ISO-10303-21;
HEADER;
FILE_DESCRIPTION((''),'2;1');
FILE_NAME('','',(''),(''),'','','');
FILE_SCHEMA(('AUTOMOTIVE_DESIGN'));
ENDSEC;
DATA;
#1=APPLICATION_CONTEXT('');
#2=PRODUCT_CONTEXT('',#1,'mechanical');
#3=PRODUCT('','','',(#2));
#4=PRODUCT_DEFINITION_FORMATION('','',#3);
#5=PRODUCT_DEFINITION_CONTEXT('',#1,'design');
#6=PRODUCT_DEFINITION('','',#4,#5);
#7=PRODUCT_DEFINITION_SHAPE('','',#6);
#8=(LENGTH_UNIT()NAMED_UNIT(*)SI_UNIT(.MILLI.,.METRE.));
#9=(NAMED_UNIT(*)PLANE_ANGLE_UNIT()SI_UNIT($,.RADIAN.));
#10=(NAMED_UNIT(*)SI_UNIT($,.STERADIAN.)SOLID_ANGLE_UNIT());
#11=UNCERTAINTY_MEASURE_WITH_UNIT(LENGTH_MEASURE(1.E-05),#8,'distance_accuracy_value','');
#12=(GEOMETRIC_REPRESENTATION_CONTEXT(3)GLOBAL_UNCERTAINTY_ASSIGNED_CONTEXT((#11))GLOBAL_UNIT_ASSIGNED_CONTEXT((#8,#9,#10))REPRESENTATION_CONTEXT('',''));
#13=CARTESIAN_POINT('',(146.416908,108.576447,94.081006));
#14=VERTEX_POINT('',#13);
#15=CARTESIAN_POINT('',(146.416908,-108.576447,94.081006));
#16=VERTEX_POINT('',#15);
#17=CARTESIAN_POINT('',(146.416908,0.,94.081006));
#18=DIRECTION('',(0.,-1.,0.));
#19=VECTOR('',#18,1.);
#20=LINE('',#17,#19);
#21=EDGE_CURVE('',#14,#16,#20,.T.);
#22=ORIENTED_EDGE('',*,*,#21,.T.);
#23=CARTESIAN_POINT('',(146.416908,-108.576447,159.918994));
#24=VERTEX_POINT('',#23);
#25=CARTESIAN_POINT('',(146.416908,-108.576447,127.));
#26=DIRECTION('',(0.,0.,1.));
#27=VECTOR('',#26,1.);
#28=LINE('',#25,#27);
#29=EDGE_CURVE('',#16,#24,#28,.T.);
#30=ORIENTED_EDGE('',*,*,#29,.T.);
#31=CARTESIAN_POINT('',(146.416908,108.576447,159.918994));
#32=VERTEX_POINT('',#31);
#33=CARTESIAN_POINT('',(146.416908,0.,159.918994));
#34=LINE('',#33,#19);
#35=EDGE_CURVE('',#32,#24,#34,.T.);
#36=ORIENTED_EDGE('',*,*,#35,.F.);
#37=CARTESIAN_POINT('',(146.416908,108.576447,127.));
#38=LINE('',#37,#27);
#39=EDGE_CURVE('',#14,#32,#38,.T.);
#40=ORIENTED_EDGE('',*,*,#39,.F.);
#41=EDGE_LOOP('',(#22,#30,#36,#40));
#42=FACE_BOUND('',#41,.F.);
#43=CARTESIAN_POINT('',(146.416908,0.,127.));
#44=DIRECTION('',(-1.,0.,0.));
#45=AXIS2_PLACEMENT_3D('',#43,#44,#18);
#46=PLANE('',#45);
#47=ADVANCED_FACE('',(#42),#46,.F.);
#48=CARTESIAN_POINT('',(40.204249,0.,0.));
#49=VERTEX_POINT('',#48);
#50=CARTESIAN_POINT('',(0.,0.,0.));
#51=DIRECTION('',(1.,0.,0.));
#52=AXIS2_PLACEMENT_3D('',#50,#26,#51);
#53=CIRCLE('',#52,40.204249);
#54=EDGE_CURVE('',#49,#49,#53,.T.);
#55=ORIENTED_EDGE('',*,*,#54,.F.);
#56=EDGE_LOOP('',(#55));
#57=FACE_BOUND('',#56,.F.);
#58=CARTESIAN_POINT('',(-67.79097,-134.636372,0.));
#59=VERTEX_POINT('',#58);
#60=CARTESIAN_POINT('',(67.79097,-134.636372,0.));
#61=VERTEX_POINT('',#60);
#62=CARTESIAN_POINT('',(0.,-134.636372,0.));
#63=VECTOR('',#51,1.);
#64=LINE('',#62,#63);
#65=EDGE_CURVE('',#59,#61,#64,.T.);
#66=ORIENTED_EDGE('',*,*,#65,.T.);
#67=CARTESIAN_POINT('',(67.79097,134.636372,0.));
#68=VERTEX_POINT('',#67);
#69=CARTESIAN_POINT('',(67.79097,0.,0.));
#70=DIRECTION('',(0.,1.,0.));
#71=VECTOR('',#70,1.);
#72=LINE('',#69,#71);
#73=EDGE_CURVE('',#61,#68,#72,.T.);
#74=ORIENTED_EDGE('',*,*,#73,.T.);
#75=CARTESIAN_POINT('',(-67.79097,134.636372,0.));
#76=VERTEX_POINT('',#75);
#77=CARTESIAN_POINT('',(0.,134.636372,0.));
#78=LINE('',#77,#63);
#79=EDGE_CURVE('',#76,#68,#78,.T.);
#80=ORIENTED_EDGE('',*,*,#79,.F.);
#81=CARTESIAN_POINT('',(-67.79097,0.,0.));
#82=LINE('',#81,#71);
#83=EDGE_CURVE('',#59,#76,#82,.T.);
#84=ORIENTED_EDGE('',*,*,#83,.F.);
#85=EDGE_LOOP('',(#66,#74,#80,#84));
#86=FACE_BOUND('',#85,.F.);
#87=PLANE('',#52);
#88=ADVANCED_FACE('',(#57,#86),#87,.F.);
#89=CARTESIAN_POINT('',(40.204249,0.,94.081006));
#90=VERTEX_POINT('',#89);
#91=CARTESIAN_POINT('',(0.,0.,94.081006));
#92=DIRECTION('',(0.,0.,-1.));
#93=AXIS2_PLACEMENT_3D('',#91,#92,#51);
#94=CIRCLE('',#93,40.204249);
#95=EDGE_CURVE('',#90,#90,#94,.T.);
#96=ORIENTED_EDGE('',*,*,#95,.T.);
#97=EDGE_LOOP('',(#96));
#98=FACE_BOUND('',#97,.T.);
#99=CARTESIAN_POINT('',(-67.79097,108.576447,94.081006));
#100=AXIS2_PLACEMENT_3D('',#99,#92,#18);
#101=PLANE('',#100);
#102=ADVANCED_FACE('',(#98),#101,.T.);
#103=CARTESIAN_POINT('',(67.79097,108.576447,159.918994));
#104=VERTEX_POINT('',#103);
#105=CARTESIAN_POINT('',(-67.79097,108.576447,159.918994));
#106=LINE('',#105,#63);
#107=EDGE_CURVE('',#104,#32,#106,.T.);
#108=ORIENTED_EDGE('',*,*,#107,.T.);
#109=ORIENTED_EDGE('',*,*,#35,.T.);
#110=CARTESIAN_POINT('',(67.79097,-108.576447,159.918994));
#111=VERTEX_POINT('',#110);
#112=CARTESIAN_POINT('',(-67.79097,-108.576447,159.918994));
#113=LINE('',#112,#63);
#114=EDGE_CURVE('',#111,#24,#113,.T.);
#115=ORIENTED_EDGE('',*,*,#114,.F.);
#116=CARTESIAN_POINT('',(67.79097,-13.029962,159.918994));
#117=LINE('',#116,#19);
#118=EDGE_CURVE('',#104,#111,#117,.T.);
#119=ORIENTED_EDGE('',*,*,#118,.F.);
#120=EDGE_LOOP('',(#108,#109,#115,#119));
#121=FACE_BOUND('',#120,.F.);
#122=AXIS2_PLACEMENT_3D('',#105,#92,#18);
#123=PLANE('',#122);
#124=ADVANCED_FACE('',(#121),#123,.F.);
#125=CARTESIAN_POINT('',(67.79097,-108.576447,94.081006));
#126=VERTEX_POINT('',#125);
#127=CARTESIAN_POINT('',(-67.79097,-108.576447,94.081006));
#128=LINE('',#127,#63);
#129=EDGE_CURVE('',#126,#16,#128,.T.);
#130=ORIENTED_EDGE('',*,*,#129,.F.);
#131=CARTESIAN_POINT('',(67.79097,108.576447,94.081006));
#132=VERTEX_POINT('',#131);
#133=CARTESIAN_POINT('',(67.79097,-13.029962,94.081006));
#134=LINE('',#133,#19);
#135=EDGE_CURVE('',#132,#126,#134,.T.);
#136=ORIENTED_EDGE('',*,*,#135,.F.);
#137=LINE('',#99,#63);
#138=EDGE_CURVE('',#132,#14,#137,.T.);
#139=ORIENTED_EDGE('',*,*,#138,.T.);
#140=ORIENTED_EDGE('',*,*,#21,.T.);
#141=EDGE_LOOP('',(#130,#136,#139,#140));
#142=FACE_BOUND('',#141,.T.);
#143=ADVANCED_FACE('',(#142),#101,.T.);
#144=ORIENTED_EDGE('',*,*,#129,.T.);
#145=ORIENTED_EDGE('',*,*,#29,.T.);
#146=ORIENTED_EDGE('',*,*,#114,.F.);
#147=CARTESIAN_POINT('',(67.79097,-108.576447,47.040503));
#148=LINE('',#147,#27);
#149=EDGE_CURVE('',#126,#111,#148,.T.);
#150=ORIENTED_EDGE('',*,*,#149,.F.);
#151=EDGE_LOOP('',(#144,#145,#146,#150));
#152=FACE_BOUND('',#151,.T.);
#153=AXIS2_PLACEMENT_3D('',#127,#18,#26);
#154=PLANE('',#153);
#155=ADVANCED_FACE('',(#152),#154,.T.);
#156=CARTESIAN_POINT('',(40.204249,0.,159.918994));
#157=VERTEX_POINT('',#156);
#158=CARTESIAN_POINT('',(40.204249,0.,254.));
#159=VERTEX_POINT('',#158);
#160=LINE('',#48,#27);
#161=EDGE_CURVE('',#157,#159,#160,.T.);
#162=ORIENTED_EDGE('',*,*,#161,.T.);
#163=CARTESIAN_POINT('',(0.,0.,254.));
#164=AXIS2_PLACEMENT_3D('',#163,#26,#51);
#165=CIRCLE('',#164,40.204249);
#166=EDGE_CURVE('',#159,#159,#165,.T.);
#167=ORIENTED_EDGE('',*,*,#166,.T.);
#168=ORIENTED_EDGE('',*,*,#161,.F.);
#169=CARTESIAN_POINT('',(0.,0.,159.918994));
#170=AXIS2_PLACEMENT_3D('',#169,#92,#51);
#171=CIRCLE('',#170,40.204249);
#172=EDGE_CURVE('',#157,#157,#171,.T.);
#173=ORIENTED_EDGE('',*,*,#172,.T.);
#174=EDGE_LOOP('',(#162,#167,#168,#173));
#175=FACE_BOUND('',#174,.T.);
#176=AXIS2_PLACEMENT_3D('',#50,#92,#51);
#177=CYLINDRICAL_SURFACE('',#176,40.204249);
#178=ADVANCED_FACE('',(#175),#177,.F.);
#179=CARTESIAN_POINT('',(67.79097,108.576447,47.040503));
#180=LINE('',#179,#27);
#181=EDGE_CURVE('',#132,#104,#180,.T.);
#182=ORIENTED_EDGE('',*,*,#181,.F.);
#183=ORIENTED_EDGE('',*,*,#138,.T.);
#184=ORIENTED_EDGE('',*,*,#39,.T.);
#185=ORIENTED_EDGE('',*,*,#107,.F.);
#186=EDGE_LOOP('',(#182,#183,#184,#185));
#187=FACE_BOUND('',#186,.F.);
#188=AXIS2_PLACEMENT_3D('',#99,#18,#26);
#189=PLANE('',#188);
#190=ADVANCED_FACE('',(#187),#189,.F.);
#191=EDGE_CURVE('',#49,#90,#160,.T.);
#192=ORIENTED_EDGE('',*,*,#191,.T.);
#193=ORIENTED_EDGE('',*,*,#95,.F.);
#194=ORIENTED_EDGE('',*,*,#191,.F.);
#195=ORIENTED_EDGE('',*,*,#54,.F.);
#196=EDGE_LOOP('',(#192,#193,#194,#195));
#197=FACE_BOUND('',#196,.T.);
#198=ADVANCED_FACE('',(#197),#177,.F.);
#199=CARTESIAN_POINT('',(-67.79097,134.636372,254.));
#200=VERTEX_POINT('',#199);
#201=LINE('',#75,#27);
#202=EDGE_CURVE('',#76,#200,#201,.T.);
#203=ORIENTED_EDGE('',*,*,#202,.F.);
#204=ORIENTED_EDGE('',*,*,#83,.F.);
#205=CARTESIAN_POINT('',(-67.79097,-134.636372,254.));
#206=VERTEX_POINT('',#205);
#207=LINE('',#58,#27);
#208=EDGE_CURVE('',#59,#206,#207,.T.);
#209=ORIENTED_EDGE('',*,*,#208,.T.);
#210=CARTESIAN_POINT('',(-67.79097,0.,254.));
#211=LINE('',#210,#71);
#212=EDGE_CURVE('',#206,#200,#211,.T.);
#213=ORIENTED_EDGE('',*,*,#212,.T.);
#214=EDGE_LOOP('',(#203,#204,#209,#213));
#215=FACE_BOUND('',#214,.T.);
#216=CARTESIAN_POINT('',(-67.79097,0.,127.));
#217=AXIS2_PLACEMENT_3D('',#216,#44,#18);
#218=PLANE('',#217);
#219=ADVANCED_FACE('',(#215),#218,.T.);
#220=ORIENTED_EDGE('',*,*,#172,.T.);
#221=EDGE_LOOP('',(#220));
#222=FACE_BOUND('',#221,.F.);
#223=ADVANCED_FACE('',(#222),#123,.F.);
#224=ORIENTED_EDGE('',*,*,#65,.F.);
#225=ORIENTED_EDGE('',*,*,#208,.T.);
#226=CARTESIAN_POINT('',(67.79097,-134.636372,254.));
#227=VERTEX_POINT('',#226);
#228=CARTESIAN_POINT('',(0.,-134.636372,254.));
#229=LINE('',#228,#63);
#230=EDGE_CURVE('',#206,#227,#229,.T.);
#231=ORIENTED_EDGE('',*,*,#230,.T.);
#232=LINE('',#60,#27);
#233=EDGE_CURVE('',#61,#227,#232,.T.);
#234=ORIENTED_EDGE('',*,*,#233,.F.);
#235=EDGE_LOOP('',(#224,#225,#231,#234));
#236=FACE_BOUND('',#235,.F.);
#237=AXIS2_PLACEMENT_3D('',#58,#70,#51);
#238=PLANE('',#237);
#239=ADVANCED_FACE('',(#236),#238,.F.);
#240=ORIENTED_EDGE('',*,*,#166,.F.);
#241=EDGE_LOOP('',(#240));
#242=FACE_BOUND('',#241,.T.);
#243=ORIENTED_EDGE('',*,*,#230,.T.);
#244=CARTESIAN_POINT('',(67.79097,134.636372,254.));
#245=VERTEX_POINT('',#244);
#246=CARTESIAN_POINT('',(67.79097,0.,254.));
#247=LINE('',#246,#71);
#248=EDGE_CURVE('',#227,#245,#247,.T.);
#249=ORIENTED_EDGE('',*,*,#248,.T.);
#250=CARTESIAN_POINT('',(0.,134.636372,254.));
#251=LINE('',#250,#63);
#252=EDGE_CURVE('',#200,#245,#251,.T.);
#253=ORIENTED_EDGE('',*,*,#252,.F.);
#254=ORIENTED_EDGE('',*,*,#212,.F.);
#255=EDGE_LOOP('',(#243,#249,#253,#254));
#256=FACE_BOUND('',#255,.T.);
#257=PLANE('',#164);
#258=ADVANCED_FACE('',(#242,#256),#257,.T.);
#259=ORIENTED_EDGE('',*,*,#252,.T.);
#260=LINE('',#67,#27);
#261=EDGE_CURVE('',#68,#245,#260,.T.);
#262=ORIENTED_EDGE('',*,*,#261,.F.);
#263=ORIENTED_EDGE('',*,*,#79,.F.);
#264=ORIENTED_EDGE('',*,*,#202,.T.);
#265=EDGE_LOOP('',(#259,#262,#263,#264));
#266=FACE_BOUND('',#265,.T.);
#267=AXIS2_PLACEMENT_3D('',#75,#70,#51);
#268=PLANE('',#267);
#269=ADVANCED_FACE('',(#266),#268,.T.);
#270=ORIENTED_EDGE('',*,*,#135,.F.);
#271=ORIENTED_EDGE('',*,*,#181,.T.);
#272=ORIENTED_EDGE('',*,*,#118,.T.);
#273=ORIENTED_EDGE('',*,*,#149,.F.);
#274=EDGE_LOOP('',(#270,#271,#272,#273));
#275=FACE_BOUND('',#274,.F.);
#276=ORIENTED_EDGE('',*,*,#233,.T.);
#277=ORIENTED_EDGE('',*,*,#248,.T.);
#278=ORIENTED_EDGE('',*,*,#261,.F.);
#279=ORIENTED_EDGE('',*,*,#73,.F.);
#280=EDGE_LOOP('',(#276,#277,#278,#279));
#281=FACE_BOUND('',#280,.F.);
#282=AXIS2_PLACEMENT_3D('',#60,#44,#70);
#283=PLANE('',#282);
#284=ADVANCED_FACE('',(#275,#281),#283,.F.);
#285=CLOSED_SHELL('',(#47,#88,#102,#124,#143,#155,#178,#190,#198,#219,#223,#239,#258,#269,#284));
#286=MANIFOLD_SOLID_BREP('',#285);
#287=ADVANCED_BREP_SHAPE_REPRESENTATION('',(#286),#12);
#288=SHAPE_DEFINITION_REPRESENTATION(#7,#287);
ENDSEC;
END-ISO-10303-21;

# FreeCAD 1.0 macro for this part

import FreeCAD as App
import Part
import Sketcher

V = App.Vector

doc = App.newDocument("Part")
params = doc.addObject("Spreadsheet::Sheet", "Params")
for row, (alias, value) in enumerate([
    ("pad1_length", "10 in"),
    ("pad2_length", "214.207878 mm"),
], start=1):
    params.set(f"A{row}", alias)
    params.set(f"B{row}", "=" + value)
    params.setAlias(f"B{row}", alias)

body = doc.addObject("PartDesign::Body", "Body")

sketch1 = body.newObject("Sketcher::SketchObject", "Sketch")
sketch1.AttachmentSupport = (doc.getObject("XY_Plane"), [""])
sketch1.MapMode = "FlatFace"
sketch1.addGeometry([
    Part.LineSegment(V(-67.79097, 134.636372, 0), V(-67.79097, -134.636372, 0)),
    Part.LineSegment(V(-67.79097, -134.636372, 0), V(67.79097, -134.636372, 0)),
    Part.LineSegment(V(67.79097, -134.636372, 0), V(67.79097, 134.636372, 0)),
    Part.LineSegment(V(67.79097, 134.636372, 0), V(-67.79097, 134.636372, 0)),
    Part.Circle(V(0, 0, 0), V(0, 0, 1), 40.204249),
], False)
sketch1.addConstraint([
    Sketcher.Constraint("Coincident", 0, 2, 1, 1),
    Sketcher.Constraint("Coincident", 1, 2, 2, 1),
    Sketcher.Constraint("Coincident", 2, 2, 3, 1),
    Sketcher.Constraint("Coincident", 3, 2, 0, 1),
    Sketcher.Constraint("Vertical", 0),
    Sketcher.Constraint("Horizontal", 1),
    Sketcher.Constraint("Vertical", 2),
    Sketcher.Constraint("Horizontal", 3),
    Sketcher.Constraint("Coincident", 4, 3, -1, 1),
    Sketcher.Constraint("Symmetric", 0, 2, 2, 2, -1, 1),
    Sketcher.Constraint("Diameter", 4, 80.408498),
    Sketcher.Constraint("DistanceX", 1, 1, 1, 2, 135.58194),
    Sketcher.Constraint("DistanceY", 0, 2, 0, 1, 269.272744),
])
pad1 = body.newObject("PartDesign::Pad", "Pad")
pad1.Profile = sketch1
pad1.setExpression("Length", "Params.pad1_length")

sketch2 = body.newObject("Sketcher::SketchObject", "Sketch001")
sketch2.AttachmentSupport = (doc.getObject("YZ_Plane"), [""])
sketch2.MapMode = "FlatFace"
sketch2.AttachmentOffset = App.Placement(V(0, 0, -67.79097), App.Rotation())
sketch2.addGeometry([
    Part.LineSegment(V(108.576447, 159.918994, 0), V(108.576447, 94.081006, 0)),
    Part.LineSegment(V(108.576447, 94.081006, 0), V(-108.576447, 94.081006, 0)),
    Part.LineSegment(V(-108.576447, 94.081006, 0), V(-108.576447, 159.918994, 0)),
    Part.LineSegment(V(-108.576447, 159.918994, 0), V(108.576447, 159.918994, 0)),
], False)
sketch2.addConstraint([
    Sketcher.Constraint("Coincident", 0, 2, 1, 1),
    Sketcher.Constraint("Coincident", 1, 2, 2, 1),
    Sketcher.Constraint("Coincident", 2, 2, 3, 1),
    Sketcher.Constraint("Coincident", 3, 2, 0, 1),
    Sketcher.Constraint("Vertical", 0),
    Sketcher.Constraint("Horizontal", 1),
    Sketcher.Constraint("Vertical", 2),
    Sketcher.Constraint("Horizontal", 3),
    Sketcher.Constraint("DistanceX", 1, 2, 1, 1, 217.152894),
    Sketcher.Constraint("DistanceY", 0, 2, 0, 1, 65.837988),
    Sketcher.Constraint("DistanceX", -1, 1, 0, 2, 108.576447),
    Sketcher.Constraint("DistanceY", -1, 1, 0, 2, 94.081006),
])
pad2 = body.newObject("PartDesign::Pad", "Pad001")
pad2.Profile = sketch2
pad2.setExpression("Length", "Params.pad2_length")

doc.recompute()
